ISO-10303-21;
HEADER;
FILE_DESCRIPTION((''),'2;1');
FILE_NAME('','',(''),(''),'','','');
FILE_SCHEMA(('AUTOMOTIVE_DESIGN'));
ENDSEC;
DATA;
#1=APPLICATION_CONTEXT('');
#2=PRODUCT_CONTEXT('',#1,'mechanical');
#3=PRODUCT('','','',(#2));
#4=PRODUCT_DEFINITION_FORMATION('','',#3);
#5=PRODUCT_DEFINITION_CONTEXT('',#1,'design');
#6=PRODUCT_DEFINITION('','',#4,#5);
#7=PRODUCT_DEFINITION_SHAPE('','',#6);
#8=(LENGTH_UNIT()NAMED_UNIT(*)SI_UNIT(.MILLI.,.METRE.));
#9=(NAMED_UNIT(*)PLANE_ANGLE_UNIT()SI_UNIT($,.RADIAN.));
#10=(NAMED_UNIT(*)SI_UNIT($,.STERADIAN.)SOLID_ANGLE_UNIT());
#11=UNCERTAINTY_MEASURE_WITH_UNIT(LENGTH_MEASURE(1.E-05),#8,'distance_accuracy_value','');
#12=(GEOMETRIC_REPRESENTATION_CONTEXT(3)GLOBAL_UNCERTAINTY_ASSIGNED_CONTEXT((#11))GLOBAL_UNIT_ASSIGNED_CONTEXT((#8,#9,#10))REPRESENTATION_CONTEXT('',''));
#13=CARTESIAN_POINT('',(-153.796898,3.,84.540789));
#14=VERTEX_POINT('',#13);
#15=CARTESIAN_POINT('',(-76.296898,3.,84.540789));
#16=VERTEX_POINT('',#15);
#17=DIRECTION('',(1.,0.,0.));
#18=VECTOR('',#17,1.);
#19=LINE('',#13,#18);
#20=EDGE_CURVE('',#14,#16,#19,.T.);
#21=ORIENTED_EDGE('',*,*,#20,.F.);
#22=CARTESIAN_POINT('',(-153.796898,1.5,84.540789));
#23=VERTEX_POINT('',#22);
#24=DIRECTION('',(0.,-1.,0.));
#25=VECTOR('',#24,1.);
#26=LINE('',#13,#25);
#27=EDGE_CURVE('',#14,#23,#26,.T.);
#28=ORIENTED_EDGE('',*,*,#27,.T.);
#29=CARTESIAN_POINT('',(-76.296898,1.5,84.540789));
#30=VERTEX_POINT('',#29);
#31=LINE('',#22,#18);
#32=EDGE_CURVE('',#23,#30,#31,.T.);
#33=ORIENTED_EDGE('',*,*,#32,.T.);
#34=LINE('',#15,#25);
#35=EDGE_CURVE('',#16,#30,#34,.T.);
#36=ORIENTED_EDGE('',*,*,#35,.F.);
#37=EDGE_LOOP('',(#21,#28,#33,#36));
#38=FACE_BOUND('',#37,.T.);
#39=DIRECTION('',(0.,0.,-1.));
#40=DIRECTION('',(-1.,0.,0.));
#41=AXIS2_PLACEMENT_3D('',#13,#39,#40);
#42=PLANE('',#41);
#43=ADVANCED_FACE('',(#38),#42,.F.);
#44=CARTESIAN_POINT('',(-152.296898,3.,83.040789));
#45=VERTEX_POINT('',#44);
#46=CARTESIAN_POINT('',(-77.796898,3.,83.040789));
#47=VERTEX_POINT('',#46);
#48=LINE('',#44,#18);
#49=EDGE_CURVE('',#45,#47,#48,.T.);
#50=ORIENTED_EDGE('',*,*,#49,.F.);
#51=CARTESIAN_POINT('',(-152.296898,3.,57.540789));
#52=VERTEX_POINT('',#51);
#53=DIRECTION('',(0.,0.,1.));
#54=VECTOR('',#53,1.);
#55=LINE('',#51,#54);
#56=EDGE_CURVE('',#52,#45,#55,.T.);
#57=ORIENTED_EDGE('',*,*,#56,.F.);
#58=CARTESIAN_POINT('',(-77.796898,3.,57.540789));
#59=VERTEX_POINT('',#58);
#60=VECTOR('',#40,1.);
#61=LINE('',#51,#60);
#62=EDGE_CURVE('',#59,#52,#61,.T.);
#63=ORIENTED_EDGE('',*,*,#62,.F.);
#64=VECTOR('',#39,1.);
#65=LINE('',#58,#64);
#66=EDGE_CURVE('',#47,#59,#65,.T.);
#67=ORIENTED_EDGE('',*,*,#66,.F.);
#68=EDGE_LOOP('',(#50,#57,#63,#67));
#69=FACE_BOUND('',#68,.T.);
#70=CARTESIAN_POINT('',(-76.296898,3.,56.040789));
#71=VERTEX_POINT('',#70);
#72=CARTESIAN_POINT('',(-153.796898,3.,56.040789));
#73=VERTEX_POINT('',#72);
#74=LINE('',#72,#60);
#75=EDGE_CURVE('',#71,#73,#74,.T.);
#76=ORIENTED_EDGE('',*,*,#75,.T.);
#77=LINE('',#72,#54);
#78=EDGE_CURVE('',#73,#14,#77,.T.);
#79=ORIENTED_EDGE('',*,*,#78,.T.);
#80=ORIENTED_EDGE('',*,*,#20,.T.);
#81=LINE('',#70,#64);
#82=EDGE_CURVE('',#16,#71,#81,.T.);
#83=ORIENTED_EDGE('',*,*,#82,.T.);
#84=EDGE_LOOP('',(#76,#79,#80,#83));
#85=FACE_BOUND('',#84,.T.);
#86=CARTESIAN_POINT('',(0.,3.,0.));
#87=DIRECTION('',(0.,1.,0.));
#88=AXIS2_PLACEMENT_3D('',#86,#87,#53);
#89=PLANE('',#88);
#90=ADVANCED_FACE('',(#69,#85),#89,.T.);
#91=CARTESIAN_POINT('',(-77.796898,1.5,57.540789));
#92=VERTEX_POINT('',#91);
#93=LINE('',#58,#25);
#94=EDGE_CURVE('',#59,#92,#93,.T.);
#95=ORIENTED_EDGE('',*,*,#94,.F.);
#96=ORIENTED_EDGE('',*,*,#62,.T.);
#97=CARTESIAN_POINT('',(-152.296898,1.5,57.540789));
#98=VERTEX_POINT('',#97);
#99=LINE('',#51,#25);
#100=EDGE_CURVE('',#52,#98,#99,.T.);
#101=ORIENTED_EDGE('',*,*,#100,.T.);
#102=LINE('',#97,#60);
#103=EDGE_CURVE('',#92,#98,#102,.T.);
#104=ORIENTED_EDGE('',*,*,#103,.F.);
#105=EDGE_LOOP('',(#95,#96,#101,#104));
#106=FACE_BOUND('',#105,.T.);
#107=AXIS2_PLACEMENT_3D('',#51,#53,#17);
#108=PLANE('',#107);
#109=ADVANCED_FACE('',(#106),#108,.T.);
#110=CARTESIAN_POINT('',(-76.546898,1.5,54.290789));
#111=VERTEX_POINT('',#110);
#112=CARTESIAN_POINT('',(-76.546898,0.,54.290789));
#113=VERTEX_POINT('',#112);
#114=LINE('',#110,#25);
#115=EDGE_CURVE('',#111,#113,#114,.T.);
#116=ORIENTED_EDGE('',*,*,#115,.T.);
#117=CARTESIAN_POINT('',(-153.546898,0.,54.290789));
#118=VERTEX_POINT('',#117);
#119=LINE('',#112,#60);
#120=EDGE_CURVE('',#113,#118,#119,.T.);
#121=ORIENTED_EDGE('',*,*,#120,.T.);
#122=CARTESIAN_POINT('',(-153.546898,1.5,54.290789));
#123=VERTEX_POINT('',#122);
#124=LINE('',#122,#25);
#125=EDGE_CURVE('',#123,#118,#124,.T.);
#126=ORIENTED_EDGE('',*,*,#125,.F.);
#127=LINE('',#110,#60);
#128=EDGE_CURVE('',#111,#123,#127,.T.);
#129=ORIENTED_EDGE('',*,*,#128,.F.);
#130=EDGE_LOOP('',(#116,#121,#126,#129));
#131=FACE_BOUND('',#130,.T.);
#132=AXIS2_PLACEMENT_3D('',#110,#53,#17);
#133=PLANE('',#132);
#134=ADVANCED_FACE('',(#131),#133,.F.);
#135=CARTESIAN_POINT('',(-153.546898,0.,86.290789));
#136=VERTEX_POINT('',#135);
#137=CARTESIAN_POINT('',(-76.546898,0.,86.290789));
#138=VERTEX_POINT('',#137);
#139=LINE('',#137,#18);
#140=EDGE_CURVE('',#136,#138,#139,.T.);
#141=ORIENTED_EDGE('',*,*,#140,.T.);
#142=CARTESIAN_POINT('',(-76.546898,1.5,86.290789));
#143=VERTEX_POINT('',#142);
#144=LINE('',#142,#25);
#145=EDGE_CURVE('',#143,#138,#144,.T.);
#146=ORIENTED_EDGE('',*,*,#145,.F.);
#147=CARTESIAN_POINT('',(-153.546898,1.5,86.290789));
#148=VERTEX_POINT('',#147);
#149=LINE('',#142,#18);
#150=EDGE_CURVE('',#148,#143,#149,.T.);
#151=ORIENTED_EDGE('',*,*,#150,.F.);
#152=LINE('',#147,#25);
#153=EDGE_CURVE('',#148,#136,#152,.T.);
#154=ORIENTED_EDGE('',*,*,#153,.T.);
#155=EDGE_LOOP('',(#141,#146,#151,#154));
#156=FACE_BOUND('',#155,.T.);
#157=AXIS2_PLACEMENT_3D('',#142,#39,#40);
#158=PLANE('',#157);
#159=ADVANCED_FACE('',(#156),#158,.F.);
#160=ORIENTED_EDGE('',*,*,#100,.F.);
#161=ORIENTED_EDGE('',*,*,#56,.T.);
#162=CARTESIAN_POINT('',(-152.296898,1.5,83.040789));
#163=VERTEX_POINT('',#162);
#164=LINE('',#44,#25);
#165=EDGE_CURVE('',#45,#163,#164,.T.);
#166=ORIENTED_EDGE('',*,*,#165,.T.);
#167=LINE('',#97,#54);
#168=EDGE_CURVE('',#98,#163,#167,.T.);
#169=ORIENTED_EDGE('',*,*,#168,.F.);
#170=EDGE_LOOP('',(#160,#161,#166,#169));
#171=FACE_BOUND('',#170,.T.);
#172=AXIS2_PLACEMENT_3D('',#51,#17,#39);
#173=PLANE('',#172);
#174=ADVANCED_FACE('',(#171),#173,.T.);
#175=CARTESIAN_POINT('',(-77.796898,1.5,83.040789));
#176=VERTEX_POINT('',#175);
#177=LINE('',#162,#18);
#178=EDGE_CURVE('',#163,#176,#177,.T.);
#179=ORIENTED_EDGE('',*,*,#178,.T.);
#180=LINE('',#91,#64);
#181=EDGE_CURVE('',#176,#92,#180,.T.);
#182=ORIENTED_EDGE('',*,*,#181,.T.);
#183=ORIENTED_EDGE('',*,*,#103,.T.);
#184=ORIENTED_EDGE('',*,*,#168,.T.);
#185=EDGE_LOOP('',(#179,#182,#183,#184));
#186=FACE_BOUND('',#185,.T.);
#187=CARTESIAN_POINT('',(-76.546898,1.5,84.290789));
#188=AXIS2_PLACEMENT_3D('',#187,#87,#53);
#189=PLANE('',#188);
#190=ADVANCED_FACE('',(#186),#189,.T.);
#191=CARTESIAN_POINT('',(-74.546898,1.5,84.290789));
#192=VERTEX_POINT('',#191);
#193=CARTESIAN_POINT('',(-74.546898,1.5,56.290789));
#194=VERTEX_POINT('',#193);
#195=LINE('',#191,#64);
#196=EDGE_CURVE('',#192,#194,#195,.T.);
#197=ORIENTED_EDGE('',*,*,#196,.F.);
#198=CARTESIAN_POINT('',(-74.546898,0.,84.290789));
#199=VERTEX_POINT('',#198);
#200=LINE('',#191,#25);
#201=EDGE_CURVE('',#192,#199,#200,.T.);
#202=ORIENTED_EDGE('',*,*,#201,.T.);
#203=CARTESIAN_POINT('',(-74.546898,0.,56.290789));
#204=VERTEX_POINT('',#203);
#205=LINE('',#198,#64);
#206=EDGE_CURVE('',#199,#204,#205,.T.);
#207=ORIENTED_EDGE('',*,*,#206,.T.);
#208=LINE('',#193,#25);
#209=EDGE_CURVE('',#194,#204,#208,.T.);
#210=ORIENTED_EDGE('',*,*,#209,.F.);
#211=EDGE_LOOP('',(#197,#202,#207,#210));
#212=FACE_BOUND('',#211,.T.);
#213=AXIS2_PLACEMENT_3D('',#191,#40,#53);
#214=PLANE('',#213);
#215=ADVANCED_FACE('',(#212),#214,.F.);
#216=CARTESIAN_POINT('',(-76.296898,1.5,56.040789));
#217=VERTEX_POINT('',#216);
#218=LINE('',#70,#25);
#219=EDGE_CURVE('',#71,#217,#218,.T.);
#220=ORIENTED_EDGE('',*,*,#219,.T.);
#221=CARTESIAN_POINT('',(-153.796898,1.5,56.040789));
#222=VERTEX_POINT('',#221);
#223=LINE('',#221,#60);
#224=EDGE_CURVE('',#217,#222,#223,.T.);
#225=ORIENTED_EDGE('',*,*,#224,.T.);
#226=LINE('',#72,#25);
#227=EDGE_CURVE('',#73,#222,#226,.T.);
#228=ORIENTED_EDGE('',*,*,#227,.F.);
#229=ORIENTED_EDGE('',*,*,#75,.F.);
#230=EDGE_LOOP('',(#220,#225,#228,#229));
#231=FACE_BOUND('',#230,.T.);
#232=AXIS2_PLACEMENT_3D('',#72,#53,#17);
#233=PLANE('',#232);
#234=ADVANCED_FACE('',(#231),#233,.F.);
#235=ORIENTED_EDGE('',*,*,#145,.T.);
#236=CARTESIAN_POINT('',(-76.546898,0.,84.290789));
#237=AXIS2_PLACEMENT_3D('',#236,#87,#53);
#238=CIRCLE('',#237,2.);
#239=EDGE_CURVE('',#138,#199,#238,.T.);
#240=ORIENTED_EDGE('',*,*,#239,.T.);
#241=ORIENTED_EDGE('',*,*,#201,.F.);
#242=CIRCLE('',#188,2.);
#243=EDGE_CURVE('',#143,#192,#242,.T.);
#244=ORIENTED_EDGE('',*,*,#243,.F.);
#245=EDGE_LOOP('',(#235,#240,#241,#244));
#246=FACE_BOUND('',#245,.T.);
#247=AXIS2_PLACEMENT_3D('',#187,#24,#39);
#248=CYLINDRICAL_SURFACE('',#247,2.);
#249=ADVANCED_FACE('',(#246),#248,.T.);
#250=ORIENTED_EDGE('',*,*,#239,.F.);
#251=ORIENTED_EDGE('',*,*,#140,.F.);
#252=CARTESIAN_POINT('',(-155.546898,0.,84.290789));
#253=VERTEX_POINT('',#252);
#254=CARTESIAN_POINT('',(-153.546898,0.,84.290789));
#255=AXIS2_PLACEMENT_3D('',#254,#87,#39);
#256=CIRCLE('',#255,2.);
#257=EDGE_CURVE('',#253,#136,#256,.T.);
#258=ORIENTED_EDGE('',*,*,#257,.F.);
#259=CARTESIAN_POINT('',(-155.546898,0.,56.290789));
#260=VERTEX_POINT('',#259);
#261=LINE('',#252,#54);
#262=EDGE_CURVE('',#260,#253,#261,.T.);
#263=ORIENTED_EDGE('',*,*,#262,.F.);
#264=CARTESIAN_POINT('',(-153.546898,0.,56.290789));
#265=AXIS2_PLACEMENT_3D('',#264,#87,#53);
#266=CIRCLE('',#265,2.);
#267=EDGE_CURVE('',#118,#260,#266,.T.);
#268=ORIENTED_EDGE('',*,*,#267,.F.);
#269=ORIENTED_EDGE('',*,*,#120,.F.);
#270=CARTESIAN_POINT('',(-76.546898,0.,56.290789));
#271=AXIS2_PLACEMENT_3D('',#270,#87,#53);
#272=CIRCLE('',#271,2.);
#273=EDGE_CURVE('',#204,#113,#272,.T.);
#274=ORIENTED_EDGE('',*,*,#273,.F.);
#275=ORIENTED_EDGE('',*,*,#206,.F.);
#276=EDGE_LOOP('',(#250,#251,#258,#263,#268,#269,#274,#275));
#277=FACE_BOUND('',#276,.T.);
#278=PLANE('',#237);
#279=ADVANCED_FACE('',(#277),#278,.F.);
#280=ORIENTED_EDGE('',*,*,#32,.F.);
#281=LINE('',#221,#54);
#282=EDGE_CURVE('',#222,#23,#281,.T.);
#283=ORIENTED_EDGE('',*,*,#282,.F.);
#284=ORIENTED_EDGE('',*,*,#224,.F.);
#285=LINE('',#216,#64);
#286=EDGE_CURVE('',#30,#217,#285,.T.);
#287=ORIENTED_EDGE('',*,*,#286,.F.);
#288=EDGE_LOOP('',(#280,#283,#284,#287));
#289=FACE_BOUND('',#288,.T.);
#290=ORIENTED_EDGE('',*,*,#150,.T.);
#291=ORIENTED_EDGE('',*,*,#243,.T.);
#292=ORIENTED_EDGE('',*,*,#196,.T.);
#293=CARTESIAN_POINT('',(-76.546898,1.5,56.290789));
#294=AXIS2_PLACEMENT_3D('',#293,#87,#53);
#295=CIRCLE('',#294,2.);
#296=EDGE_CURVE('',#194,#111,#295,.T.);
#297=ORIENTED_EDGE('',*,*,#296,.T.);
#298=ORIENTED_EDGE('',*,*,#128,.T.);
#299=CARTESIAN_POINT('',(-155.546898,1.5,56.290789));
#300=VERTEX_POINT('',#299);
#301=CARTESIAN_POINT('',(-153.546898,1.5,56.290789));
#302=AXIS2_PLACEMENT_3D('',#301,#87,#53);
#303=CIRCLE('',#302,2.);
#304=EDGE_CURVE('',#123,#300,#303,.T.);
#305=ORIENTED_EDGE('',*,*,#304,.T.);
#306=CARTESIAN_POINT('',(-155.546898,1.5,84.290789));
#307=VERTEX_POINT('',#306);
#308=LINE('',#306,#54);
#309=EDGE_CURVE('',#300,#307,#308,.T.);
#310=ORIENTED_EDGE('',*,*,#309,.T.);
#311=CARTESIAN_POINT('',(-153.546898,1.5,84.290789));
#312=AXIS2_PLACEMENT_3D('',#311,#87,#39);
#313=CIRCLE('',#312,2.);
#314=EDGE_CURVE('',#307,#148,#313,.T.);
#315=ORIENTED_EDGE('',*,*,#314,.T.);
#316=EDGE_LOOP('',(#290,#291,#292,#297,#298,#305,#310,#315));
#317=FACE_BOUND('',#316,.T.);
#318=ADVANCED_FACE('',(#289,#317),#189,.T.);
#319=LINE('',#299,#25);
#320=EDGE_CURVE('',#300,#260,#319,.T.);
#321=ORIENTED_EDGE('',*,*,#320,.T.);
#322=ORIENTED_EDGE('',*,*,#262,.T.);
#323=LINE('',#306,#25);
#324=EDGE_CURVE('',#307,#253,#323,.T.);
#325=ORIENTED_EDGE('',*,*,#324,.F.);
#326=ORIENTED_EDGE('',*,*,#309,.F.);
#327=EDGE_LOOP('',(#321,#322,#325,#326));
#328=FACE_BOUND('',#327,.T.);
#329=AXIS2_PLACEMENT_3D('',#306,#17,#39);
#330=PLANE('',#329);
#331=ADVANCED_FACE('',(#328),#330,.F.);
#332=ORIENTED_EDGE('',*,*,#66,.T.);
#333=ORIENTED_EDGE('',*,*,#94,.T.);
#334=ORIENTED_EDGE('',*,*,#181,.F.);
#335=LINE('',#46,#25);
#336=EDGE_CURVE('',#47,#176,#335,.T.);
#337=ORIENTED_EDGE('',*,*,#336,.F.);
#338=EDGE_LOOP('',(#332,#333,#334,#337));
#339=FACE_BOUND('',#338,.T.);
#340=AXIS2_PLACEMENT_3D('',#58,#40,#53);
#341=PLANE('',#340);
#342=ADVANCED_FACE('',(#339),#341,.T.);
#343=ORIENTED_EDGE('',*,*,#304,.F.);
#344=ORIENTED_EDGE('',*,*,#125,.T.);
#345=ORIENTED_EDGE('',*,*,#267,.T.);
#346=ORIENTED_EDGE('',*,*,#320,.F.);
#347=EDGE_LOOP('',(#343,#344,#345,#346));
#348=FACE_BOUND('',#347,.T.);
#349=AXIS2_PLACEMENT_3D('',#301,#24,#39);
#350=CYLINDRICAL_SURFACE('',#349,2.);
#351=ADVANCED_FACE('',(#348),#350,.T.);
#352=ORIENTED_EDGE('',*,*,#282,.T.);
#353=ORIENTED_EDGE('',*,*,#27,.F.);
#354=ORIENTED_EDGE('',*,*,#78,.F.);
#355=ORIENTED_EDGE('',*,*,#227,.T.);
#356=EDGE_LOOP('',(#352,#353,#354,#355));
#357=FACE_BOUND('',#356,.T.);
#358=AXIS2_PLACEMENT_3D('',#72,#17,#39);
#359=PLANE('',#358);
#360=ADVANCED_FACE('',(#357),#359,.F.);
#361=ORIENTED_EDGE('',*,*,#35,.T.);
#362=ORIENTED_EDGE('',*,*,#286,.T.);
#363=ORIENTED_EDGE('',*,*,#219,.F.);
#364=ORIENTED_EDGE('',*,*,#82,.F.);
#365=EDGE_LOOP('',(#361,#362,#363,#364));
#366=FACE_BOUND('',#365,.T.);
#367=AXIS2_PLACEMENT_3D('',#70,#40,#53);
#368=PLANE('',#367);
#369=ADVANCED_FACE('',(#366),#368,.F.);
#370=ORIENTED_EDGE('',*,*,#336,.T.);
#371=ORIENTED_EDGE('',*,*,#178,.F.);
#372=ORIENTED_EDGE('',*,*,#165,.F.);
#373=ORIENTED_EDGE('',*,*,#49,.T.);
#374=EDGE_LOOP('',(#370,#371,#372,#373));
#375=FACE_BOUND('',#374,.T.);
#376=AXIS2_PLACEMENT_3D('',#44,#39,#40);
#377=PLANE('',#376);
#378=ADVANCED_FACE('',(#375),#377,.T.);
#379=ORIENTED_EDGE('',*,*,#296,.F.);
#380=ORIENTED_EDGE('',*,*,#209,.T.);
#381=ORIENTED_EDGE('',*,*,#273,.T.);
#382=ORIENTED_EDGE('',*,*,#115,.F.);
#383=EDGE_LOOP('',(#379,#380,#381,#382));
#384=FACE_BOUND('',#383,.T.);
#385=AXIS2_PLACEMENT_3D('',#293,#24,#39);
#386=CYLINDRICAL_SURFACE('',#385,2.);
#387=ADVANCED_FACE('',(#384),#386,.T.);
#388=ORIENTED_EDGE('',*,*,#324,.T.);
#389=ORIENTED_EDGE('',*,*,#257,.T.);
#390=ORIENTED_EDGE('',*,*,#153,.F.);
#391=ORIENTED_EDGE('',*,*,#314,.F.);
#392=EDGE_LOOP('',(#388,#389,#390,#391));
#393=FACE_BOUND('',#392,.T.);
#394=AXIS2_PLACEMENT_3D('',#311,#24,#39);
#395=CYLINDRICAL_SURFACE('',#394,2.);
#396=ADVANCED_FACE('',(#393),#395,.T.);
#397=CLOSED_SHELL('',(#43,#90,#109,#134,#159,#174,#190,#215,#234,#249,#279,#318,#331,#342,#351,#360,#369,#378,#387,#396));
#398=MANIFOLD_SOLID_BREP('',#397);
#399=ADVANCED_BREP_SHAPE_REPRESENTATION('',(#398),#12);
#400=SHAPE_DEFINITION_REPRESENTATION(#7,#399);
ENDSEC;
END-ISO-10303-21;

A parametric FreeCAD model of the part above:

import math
import FreeCAD as App
import Part
import Sketcher
Q = App.Units.Quantity

doc = App.newDocument("Part")
body = doc.addObject("PartDesign::Body", "Body")

sketch1 = body.newObject("Sketcher::SketchObject", "Sketch")
sketch1.AttachmentSupport = (doc.getObject("XZ_Plane"), [""])
sketch1.MapMode = "FlatFace"
sketch1.addGeometry(Part.LineSegment(App.Vector(-153.5, 86.3, 0), App.Vector(-76.5, 86.3, 0)), False)
sketch1.addGeometry(Part.ArcOfCircle(Part.Circle(App.Vector(-76.5, 84.3, 0), App.Vector(0, 0, 1), 2), math.radians(0), math.radians(90)), False)
sketch1.addGeometry(Part.LineSegment(App.Vector(-74.5, 84.3, 0), App.Vector(-74.5, 56.3, 0)), False)
sketch1.addGeometry(Part.ArcOfCircle(Part.Circle(App.Vector(-76.5, 56.3, 0), App.Vector(0, 0, 1), 2), math.radians(-90), math.radians(0)), False)
sketch1.addGeometry(Part.LineSegment(App.Vector(-76.5, 54.3, 0), App.Vector(-153.5, 54.3, 0)), False)
sketch1.addGeometry(Part.ArcOfCircle(Part.Circle(App.Vector(-153.5, 56.3, 0), App.Vector(0, 0, 1), 2), math.radians(180), math.radians(270)), False)
sketch1.addGeometry(Part.LineSegment(App.Vector(-155.5, 56.3, 0), App.Vector(-155.5, 84.3, 0)), False)
sketch1.addGeometry(Part.ArcOfCircle(Part.Circle(App.Vector(-153.5, 84.3, 0), App.Vector(0, 0, 1), 2), math.radians(90), math.radians(180)), False)
sketch1.addConstraint(Sketcher.Constraint("Tangent", 0, 2, 1, 2))
sketch1.addConstraint(Sketcher.Constraint("Tangent", 1, 1, 2, 1))
sketch1.addConstraint(Sketcher.Constraint("Tangent", 2, 2, 3, 2))
sketch1.addConstraint(Sketcher.Constraint("Tangent", 3, 1, 4, 1))
sketch1.addConstraint(Sketcher.Constraint("Tangent", 4, 2, 5, 2))
sketch1.addConstraint(Sketcher.Constraint("Tangent", 5, 1, 6, 1))
sketch1.addConstraint(Sketcher.Constraint("Tangent", 6, 2, 7, 2))
sketch1.addConstraint(Sketcher.Constraint("Tangent", 7, 1, 0, 1))
sketch1.addConstraint(Sketcher.Constraint("Horizontal", 0))
sketch1.addConstraint(Sketcher.Constraint("Vertical", 2))
sketch1.addConstraint(Sketcher.Constraint("Horizontal", 4))
sketch1.addConstraint(Sketcher.Constraint("Vertical", 6))
sketch1.addConstraint(Sketcher.Constraint("Equal", 1, 3))
sketch1.addConstraint(Sketcher.Constraint("Equal", 3, 5))
sketch1.addConstraint(Sketcher.Constraint("Equal", 5, 7))
sketch1.addConstraint(Sketcher.Constraint("Radius", 1, Q("2 mm")))
sketch1.addConstraint(Sketcher.Constraint("DistanceX", 0, 1, 0, 2, Q("77 mm")))
sketch1.addConstraint(Sketcher.Constraint("DistanceY", 2, 2, 2, 1, Q("28 mm")))
sketch1.addConstraint(Sketcher.Constraint("DistanceY", -1, 1, 1, 3, Q("84.290789 mm")))
sketch1.addConstraint(Sketcher.Constraint("DistanceX", 1, 3, -1, 1, Q("76.546898 mm")))
pad1 = body.newObject("PartDesign::Pad", "Pad")
pad1.Profile = sketch1
pad1.Length = 1.5
pad1.Reversed = True

sketch2 = body.newObject("Sketcher::SketchObject", "Sketch001")
sketch2.AttachmentSupport = (doc.getObject("XZ_Plane"), [""])
sketch2.MapMode = "FlatFace"
sketch2.AttachmentOffset = App.Placement(App.Vector(0, 0, -1.5), App.Rotation())
sketch2.addGeometry(Part.LineSegment(App.Vector(-154, 56, 0), App.Vector(-154, 85, 0)), False)
sketch2.addGeometry(Part.LineSegment(App.Vector(-154, 85, 0), App.Vector(-76, 85, 0)), False)
sketch2.addGeometry(Part.LineSegment(App.Vector(-76, 85, 0), App.Vector(-76, 56, 0)), False)
sketch2.addGeometry(Part.LineSegment(App.Vector(-76, 56, 0), App.Vector(-154, 56, 0)), False)
sketch2.addGeometry(Part.LineSegment(App.Vector(-78, 83, 0), App.Vector(-152, 83, 0)), False)
sketch2.addGeometry(Part.LineSegment(App.Vector(-152, 83, 0), App.Vector(-152, 58, 0)), False)
sketch2.addGeometry(Part.LineSegment(App.Vector(-152, 58, 0), App.Vector(-78, 58, 0)), False)
sketch2.addGeometry(Part.LineSegment(App.Vector(-78, 58, 0), App.Vector(-78, 83, 0)), False)
sketch2.addConstraint(Sketcher.Constraint("Coincident", 0, 2, 1, 1))
sketch2.addConstraint(Sketcher.Constraint("Coincident", 1, 2, 2, 1))
sketch2.addConstraint(Sketcher.Constraint("Coincident", 2, 2, 3, 1))
sketch2.addConstraint(Sketcher.Constraint("Coincident", 3, 2, 0, 1))
sketch2.addConstraint(Sketcher.Constraint("Coincident", 4, 2, 5, 1))
sketch2.addConstraint(Sketcher.Constraint("Coincident", 5, 2, 6, 1))
sketch2.addConstraint(Sketcher.Constraint("Coincident", 6, 2, 7, 1))
sketch2.addConstraint(Sketcher.Constraint("Coincident", 7, 2, 4, 1))
sketch2.addConstraint(Sketcher.Constraint("Vertical", 0))
sketch2.addConstraint(Sketcher.Constraint("Horizontal", 1))
sketch2.addConstraint(Sketcher.Constraint("Vertical", 2))
sketch2.addConstraint(Sketcher.Constraint("Horizontal", 3))
sketch2.addConstraint(Sketcher.Constraint("Horizontal", 4))
sketch2.addConstraint(Sketcher.Constraint("Vertical", 5))
sketch2.addConstraint(Sketcher.Constraint("Horizontal", 6))
sketch2.addConstraint(Sketcher.Constraint("Vertical", 7))
sketch2.addConstraint(Sketcher.Constraint("DistanceX", 1, 1, 1, 2, Q("77.5 mm")))
sketch2.addConstraint(Sketcher.Constraint("DistanceX", 4, 2, 4, 1, Q("74.5 mm")))
sketch2.addConstraint(Sketcher.Constraint("DistanceY", 0, 1, 0, 2, Q("28.5 mm")))
sketch2.addConstraint(Sketcher.Constraint("DistanceY", 5, 2, 5, 1, Q("25.5 mm")))
sketch2.addConstraint(Sketcher.Constraint("DistanceY", 3, 2, 4, 2, Q("27 mm")))
sketch2.addConstraint(Sketcher.Constraint("DistanceX", 4, 2, 1, 2, Q("76 mm")))
sketch2.addConstraint(Sketcher.Constraint("DistanceY", -1, 1, 0, 2, Q("84.540789 mm")))
sketch2.addConstraint(Sketcher.Constraint("DistanceX", 0, 2, -1, 1, Q("153.796898 mm")))
pad2 = body.newObject("PartDesign::Pad", "Pad001")
pad2.Profile = sketch2
pad2.Length = 1.5
pad2.Reversed = True

doc.recompute()
